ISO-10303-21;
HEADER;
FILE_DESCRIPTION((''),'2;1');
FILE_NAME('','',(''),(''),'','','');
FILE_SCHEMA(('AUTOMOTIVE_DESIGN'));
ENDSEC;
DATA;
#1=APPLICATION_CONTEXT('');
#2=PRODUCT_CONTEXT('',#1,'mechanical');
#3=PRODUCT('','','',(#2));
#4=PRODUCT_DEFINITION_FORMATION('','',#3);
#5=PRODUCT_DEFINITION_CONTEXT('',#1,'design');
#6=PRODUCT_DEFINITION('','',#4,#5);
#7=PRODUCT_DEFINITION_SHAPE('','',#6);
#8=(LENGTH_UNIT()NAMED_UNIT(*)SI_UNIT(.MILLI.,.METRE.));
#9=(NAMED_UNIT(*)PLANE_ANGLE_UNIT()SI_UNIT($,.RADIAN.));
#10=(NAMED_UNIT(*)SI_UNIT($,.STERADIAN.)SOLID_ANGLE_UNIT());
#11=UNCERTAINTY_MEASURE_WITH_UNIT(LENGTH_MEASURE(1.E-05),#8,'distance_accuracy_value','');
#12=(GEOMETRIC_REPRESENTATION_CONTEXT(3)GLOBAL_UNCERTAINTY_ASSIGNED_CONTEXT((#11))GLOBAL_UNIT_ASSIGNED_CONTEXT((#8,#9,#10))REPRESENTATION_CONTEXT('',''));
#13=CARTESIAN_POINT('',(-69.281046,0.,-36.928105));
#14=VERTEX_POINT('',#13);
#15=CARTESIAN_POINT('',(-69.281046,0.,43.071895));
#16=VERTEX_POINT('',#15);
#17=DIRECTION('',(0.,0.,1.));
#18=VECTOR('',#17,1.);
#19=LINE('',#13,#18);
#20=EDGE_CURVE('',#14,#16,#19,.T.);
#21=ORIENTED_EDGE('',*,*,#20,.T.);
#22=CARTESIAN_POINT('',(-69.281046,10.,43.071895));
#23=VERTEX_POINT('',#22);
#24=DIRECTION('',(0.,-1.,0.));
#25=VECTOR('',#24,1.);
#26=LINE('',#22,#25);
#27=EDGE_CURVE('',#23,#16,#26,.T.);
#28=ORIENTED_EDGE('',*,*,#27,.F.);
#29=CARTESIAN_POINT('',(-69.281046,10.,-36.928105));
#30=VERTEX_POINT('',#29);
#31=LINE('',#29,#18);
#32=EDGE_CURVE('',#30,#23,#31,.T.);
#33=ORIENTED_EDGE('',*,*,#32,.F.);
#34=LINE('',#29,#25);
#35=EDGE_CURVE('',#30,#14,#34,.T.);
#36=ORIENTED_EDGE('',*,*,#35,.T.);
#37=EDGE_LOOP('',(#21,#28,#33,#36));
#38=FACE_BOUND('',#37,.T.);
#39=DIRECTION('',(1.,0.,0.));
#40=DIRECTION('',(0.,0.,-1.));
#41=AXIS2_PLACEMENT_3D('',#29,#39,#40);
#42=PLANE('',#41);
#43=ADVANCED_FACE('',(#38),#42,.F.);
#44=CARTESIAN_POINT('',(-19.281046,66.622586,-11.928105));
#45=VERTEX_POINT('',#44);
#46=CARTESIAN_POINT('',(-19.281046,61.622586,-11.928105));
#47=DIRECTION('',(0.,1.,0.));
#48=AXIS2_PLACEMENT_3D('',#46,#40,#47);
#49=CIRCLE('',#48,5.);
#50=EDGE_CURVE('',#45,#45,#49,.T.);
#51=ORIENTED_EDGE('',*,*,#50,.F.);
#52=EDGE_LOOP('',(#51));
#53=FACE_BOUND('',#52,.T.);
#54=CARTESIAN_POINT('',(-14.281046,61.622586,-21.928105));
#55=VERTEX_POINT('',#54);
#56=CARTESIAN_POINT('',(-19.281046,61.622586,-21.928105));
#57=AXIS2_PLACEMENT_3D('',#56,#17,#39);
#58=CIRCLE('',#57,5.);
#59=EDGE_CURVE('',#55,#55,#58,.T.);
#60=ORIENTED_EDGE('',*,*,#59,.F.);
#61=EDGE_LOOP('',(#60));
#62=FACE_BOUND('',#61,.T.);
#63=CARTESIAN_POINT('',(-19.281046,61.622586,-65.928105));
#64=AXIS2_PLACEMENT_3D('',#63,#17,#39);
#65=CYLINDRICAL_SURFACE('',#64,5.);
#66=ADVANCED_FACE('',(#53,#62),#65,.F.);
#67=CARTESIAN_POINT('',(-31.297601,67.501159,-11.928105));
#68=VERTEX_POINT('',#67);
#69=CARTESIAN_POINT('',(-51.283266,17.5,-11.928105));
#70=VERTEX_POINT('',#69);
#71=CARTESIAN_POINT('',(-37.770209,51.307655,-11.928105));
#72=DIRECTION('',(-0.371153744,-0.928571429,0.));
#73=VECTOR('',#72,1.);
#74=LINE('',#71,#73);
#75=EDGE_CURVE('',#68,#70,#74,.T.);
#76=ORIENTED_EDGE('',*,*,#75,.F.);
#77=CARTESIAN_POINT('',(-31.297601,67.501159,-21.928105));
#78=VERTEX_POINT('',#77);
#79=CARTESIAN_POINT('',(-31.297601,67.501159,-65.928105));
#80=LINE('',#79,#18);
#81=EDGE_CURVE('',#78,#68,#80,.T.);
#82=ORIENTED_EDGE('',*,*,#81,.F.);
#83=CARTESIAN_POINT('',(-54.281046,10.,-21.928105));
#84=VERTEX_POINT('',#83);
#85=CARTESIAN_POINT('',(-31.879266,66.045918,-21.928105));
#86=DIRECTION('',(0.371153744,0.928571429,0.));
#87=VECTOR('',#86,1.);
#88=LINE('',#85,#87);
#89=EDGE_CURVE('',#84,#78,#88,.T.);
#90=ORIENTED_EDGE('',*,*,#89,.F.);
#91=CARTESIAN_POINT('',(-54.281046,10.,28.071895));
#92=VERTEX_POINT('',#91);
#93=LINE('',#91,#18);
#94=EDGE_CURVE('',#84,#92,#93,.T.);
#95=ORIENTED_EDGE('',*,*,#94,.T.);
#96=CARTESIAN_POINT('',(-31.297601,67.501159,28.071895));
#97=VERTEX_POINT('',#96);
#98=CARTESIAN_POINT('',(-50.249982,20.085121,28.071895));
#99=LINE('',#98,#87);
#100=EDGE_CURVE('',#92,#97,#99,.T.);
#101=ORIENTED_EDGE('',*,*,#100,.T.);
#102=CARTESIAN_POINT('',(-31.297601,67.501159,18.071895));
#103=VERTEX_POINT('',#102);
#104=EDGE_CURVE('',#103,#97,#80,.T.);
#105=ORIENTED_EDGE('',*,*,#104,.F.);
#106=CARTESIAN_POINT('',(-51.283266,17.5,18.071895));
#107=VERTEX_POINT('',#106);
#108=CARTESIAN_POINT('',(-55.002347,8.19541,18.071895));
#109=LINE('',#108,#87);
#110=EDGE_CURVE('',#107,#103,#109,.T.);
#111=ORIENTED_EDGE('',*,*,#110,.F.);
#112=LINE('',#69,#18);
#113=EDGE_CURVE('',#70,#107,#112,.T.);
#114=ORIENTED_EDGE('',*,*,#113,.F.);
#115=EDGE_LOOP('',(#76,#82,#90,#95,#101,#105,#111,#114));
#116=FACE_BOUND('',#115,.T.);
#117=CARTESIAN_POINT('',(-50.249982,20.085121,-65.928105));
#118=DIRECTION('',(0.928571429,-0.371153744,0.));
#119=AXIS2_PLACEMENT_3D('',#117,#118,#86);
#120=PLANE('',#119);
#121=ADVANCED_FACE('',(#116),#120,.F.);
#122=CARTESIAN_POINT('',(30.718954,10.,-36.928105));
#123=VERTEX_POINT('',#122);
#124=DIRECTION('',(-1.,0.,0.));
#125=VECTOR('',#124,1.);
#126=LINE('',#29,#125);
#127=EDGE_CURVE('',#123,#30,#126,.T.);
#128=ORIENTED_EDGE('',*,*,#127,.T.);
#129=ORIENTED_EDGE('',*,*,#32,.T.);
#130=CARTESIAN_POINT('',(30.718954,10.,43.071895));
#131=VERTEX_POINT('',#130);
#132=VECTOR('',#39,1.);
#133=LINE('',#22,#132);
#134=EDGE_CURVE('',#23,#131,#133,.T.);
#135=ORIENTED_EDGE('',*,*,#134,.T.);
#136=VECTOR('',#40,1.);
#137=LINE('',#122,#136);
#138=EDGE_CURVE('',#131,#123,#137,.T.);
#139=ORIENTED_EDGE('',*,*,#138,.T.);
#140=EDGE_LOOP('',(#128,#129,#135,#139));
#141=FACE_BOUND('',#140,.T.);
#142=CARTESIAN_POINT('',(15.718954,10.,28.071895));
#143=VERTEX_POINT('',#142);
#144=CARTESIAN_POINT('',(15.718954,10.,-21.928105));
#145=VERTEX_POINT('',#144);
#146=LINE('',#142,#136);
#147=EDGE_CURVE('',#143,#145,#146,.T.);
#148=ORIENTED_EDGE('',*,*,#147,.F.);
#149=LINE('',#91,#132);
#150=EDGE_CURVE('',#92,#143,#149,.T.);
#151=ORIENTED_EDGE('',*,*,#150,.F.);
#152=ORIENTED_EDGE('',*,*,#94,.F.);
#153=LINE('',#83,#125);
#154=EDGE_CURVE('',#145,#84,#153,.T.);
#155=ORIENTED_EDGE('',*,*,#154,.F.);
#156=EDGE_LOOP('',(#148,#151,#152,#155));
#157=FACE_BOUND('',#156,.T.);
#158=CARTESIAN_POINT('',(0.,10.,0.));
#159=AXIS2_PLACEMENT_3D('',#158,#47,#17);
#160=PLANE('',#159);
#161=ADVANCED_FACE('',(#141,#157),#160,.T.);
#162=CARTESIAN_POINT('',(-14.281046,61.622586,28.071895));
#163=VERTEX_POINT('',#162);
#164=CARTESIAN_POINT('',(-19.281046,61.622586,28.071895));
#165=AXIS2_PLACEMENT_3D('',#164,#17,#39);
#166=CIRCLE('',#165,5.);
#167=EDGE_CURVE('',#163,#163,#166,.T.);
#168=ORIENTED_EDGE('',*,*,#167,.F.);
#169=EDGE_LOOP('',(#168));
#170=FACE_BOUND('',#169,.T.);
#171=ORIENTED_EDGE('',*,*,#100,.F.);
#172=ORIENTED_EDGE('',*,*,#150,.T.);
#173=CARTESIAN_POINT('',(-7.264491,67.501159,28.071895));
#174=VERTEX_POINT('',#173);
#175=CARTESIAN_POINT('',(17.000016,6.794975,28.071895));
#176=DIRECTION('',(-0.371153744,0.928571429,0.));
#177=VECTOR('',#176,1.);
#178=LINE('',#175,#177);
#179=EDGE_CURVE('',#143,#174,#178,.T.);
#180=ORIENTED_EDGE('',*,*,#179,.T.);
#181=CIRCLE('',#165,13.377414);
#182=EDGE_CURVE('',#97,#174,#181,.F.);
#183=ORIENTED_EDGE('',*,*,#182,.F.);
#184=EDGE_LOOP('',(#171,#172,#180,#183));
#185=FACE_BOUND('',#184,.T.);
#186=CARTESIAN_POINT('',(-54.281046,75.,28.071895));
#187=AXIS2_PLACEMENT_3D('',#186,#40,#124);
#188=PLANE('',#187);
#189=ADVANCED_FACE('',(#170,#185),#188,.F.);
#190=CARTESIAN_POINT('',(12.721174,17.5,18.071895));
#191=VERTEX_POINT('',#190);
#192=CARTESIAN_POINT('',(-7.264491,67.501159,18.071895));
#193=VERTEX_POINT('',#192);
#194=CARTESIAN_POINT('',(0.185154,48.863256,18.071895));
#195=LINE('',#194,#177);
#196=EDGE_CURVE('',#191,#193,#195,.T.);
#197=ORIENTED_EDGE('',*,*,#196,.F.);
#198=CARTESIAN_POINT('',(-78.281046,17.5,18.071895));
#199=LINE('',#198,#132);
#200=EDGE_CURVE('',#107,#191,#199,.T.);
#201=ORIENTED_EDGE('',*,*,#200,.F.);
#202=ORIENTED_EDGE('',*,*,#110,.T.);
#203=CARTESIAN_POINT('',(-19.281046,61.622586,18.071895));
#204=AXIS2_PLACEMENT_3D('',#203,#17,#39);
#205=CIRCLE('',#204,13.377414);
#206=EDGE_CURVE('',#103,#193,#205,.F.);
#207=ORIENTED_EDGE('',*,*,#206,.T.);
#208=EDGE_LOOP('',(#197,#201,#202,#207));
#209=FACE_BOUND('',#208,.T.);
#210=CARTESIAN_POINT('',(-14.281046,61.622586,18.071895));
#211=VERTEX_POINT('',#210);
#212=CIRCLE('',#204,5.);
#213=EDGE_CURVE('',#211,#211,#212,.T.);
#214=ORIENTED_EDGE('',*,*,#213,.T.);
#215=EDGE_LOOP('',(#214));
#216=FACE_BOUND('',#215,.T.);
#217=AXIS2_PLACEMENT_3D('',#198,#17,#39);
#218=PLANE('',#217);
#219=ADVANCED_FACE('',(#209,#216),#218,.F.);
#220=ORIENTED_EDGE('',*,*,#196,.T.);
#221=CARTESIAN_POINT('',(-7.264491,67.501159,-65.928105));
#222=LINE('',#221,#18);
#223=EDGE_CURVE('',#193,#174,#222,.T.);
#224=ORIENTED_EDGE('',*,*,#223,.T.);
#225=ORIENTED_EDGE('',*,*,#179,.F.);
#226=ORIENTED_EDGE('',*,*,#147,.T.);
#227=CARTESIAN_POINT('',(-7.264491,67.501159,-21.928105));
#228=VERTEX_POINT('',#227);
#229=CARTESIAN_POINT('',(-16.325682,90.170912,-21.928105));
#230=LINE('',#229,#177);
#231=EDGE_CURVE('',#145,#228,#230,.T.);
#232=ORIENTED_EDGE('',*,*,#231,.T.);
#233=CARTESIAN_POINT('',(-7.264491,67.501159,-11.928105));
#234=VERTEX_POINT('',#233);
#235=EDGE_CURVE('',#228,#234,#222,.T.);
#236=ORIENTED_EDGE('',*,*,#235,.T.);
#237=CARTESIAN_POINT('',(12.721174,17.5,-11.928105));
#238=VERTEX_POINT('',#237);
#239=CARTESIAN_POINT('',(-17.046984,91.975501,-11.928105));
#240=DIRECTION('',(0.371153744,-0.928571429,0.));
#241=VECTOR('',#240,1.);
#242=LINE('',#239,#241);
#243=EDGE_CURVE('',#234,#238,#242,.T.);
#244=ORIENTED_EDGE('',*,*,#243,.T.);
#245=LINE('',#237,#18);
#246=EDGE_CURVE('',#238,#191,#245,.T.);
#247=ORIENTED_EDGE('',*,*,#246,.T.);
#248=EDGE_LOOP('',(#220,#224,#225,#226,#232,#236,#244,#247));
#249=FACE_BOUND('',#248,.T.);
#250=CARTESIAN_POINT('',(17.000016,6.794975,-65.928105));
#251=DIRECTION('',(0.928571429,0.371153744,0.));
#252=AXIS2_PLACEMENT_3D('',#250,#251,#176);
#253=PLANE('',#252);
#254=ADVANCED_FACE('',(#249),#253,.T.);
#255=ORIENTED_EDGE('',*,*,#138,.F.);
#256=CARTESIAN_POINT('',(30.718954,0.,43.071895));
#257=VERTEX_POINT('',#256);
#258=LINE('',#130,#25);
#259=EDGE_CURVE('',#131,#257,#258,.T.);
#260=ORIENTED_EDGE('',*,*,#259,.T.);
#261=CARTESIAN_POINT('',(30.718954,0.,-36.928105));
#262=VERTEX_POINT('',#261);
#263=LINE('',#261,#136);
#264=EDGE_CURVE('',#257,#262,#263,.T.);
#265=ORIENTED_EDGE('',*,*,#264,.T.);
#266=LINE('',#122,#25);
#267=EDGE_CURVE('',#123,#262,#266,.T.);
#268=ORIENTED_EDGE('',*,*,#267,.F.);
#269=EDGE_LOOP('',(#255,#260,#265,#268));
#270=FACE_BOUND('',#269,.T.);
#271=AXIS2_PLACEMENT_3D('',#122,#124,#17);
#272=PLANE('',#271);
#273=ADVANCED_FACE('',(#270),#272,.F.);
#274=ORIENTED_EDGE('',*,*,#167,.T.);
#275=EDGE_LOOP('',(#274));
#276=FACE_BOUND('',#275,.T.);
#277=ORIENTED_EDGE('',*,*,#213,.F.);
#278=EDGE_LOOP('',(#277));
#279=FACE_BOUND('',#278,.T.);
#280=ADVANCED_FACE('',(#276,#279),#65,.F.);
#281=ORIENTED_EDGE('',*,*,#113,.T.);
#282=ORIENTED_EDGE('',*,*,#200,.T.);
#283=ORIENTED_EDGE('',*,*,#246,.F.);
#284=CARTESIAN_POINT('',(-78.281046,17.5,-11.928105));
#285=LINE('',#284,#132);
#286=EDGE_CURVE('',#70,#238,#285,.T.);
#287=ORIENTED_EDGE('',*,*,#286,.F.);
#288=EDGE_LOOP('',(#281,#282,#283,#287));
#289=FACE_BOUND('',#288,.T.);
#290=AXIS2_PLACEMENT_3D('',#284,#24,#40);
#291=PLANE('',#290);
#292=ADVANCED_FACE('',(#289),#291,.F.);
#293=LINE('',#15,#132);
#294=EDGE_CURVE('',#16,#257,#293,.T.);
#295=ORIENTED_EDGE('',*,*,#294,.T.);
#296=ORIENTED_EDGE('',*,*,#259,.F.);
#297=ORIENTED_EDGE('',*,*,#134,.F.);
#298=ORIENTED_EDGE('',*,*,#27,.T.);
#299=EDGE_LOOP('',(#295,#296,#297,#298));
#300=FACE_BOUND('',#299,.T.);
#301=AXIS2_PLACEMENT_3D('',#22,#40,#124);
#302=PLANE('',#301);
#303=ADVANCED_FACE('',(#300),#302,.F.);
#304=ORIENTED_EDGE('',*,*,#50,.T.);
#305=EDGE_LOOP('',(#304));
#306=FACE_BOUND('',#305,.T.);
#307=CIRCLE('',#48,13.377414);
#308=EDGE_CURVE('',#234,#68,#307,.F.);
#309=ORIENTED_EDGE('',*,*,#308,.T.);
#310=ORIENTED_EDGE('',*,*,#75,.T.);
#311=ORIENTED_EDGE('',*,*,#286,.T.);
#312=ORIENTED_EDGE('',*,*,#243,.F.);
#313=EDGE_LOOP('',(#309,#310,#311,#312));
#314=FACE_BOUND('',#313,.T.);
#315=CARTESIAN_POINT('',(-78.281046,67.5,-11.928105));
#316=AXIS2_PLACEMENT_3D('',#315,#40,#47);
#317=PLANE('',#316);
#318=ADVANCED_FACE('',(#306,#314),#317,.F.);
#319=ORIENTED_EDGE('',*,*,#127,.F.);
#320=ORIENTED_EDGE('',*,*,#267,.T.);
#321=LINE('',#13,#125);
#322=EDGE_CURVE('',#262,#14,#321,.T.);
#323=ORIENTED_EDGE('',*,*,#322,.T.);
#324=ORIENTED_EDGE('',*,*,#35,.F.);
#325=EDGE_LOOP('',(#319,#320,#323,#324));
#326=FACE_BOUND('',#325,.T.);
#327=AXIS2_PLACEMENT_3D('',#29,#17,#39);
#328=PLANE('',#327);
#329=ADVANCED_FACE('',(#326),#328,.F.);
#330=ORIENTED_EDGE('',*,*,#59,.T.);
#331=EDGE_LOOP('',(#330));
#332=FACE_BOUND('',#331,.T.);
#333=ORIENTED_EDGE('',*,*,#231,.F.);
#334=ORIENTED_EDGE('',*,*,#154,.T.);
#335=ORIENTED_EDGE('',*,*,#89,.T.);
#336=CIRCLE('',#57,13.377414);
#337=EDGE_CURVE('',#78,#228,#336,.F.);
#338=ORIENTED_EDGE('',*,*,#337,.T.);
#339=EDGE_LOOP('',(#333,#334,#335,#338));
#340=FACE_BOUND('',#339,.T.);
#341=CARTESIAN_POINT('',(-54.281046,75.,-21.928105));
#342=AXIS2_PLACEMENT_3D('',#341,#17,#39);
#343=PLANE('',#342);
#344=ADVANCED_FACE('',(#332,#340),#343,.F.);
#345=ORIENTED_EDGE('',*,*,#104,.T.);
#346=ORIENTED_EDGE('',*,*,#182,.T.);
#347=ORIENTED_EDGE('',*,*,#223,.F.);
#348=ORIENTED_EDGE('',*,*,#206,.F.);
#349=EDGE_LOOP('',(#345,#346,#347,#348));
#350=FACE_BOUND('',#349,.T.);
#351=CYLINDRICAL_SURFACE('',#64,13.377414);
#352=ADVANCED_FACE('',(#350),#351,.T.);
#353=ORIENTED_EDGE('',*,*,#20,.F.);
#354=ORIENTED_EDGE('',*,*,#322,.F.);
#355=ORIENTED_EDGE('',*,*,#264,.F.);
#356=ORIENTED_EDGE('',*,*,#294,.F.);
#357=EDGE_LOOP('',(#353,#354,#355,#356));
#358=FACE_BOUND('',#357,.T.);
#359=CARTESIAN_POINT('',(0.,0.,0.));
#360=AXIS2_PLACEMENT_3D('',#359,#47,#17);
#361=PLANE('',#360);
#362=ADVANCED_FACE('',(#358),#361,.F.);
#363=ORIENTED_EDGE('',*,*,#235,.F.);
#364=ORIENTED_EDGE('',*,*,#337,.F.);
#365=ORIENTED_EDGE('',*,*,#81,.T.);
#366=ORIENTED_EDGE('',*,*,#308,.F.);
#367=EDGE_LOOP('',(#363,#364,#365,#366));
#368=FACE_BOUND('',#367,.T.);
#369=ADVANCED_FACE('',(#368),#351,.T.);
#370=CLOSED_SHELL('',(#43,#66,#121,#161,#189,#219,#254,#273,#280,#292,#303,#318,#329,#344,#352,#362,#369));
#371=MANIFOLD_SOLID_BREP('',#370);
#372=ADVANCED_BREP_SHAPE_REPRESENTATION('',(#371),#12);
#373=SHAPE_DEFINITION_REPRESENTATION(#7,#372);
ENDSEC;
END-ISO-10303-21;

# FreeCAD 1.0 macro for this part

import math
import FreeCAD as App
import Part
import Sketcher

V = App.Vector


def add_polygon(sketch, points):
    """Adds a closed chain of lines whose ends are joined by coincident constraints."""
    first, n = sketch.GeometryCount, len(points)
    for a, b in zip(points, points[1:] + points[:1]):
        sketch.addGeometry(Part.LineSegment(App.Vector(*a, 0), App.Vector(*b, 0)), False)
    for i in range(n):
        sketch.addConstraint(Sketcher.Constraint("Coincident", first + i, 2, first + (i + 1) % n, 1))

doc = App.newDocument("Part")
body = doc.addObject("PartDesign::Body", "Body")

# Sketch on XZ plane
sketch1 = body.newObject("Sketcher::SketchObject", "Sketch")
sketch1.AttachmentSupport = (doc.getObject("XZ_Plane"), [""])
sketch1.MapMode = "FlatFace"
add_polygon(sketch1, [(-69, -37), (-69, 43), (31, 43), (31, -37)])  # lines 0-3
sketch1.addConstraint(Sketcher.Constraint("Vertical", 0))
sketch1.addConstraint(Sketcher.Constraint("Horizontal", 1))
sketch1.addConstraint(Sketcher.Constraint("Vertical", 2))
sketch1.addConstraint(Sketcher.Constraint("Horizontal", 3))
sketch1.addConstraint(Sketcher.Constraint("DistanceX", 1, 1, 1, 2, 100.0))
sketch1.addConstraint(Sketcher.Constraint("DistanceY", 0, 1, 0, 2, 80.0))
sketch1.addConstraint(Sketcher.Constraint("DistanceX", 0, 2, -1, 1, 69.281046))
sketch1.addConstraint(Sketcher.Constraint("DistanceY", -1, 1, 0, 2, 43.071895))
pad1 = body.newObject("PartDesign::Pad", "Pad")
pad1.Profile = sketch1
pad1.Length = 10
pad1.Reversed = True

# Sketch on XZ plane
sketch2 = body.newObject("Sketcher::SketchObject", "Sketch001")
sketch2.AttachmentSupport = (doc.getObject("XZ_Plane"), [""])
sketch2.MapMode = "FlatFace"
sketch2.AttachmentOffset = App.Placement(V(0, 0, -10), App.Rotation())
add_polygon(sketch2, [(-54, -22), (-54, 28), (16, 28), (16, -22)])  # lines 0-3
sketch2.addConstraint(Sketcher.Constraint("Vertical", 0))
sketch2.addConstraint(Sketcher.Constraint("Horizontal", 1))
sketch2.addConstraint(Sketcher.Constraint("Vertical", 2))
sketch2.addConstraint(Sketcher.Constraint("Horizontal", 3))
sketch2.addConstraint(Sketcher.Constraint("DistanceX", 1, 1, 1, 2, 70.0))
sketch2.addConstraint(Sketcher.Constraint("DistanceY", 0, 1, 0, 2, 50.0))
sketch2.addConstraint(Sketcher.Constraint("DistanceX", 0, 2, -1, 1, 54.281046))
sketch2.addConstraint(Sketcher.Constraint("DistanceY", -1, 1, 0, 2, 28.071895))
pad2 = body.newObject("PartDesign::Pad", "Pad001")
pad2.Profile = sketch2
pad2.Length = 65
pad2.Reversed = True

# Sketch on YZ plane
sketch3 = body.newObject("Sketcher::SketchObject", "Sketch002")
sketch3.AttachmentSupport = (doc.getObject("YZ_Plane"), [""])
sketch3.MapMode = "FlatFace"
sketch3.AttachmentOffset = App.Placement(V(0, 0, 15.718954), App.Rotation())
add_polygon(sketch3, [(18, 18), (18, -12), (75, -12), (75, 18)])  # lines 0-3
sketch3.addConstraint(Sketcher.Constraint("Vertical", 0))
sketch3.addConstraint(Sketcher.Constraint("Horizontal", 1))
sketch3.addConstraint(Sketcher.Constraint("Vertical", 2))
sketch3.addConstraint(Sketcher.Constraint("Horizontal", 3))
sketch3.addConstraint(Sketcher.Constraint("DistanceY", 0, 2, 0, 1, 30.0))
sketch3.addConstraint(Sketcher.Constraint("DistanceX", 1, 1, 1, 2, 57.5))
sketch3.addConstraint(Sketcher.Constraint("DistanceX", -1, 1, 1, 2, 75.0))
sketch3.addConstraint(Sketcher.Constraint("DistanceY", 0, 2, -1, 1, 11.928105))
pocket1 = body.newObject("PartDesign::Pocket", "Pocket")
pocket1.Profile = sketch3
pocket1.Length = 94

# Sketch on XY plane
sketch4 = body.newObject("Sketcher::SketchObject", "Sketch003")
sketch4.AttachmentSupport = (doc.getObject("XY_Plane"), [""])
sketch4.MapMode = "FlatFace"
sketch4.AttachmentOffset = App.Placement(V(0, 0, 28.071895), App.Rotation())
sketch4.addGeometry(Part.LineSegment(V(-54, 75, 0), V(-54, 10, 0)), False)
sketch4.addGeometry(Part.LineSegment(V(-54, 10, 0), V(-31, 68, 0)), False)
sketch4.addGeometry(Part.ArcOfCircle(Part.Circle(V(-19, 62, 0), V(0, 0, 1), 13), math.radians(90), math.radians(154)), False)
sketch4.addGeometry(Part.LineSegment(V(-19, 75, 0), V(-54, 75, 0)), False)
sketch4.addGeometry(Part.ArcOfCircle(Part.Circle(V(-19, 62, 0), V(0, 0, 1), 13), math.radians(26), math.radians(90)), False)
sketch4.addGeometry(Part.LineSegment(V(-7, 68, 0), V(16, 10, 0)), False)
sketch4.addGeometry(Part.LineSegment(V(16, 10, 0), V(16, 75, 0)), False)
sketch4.addGeometry(Part.LineSegment(V(16, 75, 0), V(-19, 75, 0)), False)
sketch4.addGeometry(Part.Circle(V(-19, 62, 0), V(0, 0, 1), 5), False)
sketch4.addConstraint(Sketcher.Constraint("Coincident", 0, 2, 1, 1))
sketch4.addConstraint(Sketcher.Constraint("Coincident", 1, 2, 2, 2))
sketch4.addConstraint(Sketcher.Constraint("Tangent", 2, 1, 3, 1))
sketch4.addConstraint(Sketcher.Constraint("Coincident", 3, 2, 0, 1))
sketch4.addConstraint(Sketcher.Constraint("Coincident", 4, 1, 5, 1))
sketch4.addConstraint(Sketcher.Constraint("Coincident", 5, 2, 6, 1))
sketch4.addConstraint(Sketcher.Constraint("Coincident", 6, 2, 7, 1))
sketch4.addConstraint(Sketcher.Constraint("Tangent", 7, 2, 4, 2))
sketch4.addConstraint(Sketcher.Constraint("Vertical", 0))
sketch4.addConstraint(Sketcher.Constraint("Horizontal", 3))
sketch4.addConstraint(Sketcher.Constraint("Vertical", 6))
sketch4.addConstraint(Sketcher.Constraint("Horizontal", 7))
sketch4.addConstraint(Sketcher.Constraint("Coincident", 4, 3, 2, 3))
sketch4.addConstraint(Sketcher.Constraint("Coincident", 8, 3, 2, 3))
sketch4.addConstraint(Sketcher.Constraint("Equal", 2, 4))
sketch4.addConstraint(Sketcher.Constraint("Horizontal", 1, 2, 4, 1))
sketch4.addConstraint(Sketcher.Constraint("Horizontal", 0, 2, 5, 2))
sketch4.addConstraint(Sketcher.Constraint("Equal", 3, 7))
sketch4.addConstraint(Sketcher.Constraint("Diameter", 8, 10.0))
sketch4.addConstraint(Sketcher.Constraint("DistanceX", 3, 2, 3, 1, 35.0))
sketch4.addConstraint(Sketcher.Constraint("DistanceY", 0, 2, 0, 1, 65.0))
sketch4.addConstraint(Sketcher.Constraint("DistanceY", -1, 1, 0, 2, 10.0))
sketch4.addConstraint(Sketcher.Constraint("Radius", 2, 13.377414))
sketch4.addConstraint(Sketcher.Constraint("DistanceX", 1, 2, -1, 1, 31.297601))
sketch4.addConstraint(Sketcher.Constraint("DistanceY", -1, 1, 1, 2, 67.501159))
pocket2 = body.newObject("PartDesign::Pocket", "Pocket001")
pocket2.Profile = sketch4
pocket2.Length = 94

doc.recompute()
